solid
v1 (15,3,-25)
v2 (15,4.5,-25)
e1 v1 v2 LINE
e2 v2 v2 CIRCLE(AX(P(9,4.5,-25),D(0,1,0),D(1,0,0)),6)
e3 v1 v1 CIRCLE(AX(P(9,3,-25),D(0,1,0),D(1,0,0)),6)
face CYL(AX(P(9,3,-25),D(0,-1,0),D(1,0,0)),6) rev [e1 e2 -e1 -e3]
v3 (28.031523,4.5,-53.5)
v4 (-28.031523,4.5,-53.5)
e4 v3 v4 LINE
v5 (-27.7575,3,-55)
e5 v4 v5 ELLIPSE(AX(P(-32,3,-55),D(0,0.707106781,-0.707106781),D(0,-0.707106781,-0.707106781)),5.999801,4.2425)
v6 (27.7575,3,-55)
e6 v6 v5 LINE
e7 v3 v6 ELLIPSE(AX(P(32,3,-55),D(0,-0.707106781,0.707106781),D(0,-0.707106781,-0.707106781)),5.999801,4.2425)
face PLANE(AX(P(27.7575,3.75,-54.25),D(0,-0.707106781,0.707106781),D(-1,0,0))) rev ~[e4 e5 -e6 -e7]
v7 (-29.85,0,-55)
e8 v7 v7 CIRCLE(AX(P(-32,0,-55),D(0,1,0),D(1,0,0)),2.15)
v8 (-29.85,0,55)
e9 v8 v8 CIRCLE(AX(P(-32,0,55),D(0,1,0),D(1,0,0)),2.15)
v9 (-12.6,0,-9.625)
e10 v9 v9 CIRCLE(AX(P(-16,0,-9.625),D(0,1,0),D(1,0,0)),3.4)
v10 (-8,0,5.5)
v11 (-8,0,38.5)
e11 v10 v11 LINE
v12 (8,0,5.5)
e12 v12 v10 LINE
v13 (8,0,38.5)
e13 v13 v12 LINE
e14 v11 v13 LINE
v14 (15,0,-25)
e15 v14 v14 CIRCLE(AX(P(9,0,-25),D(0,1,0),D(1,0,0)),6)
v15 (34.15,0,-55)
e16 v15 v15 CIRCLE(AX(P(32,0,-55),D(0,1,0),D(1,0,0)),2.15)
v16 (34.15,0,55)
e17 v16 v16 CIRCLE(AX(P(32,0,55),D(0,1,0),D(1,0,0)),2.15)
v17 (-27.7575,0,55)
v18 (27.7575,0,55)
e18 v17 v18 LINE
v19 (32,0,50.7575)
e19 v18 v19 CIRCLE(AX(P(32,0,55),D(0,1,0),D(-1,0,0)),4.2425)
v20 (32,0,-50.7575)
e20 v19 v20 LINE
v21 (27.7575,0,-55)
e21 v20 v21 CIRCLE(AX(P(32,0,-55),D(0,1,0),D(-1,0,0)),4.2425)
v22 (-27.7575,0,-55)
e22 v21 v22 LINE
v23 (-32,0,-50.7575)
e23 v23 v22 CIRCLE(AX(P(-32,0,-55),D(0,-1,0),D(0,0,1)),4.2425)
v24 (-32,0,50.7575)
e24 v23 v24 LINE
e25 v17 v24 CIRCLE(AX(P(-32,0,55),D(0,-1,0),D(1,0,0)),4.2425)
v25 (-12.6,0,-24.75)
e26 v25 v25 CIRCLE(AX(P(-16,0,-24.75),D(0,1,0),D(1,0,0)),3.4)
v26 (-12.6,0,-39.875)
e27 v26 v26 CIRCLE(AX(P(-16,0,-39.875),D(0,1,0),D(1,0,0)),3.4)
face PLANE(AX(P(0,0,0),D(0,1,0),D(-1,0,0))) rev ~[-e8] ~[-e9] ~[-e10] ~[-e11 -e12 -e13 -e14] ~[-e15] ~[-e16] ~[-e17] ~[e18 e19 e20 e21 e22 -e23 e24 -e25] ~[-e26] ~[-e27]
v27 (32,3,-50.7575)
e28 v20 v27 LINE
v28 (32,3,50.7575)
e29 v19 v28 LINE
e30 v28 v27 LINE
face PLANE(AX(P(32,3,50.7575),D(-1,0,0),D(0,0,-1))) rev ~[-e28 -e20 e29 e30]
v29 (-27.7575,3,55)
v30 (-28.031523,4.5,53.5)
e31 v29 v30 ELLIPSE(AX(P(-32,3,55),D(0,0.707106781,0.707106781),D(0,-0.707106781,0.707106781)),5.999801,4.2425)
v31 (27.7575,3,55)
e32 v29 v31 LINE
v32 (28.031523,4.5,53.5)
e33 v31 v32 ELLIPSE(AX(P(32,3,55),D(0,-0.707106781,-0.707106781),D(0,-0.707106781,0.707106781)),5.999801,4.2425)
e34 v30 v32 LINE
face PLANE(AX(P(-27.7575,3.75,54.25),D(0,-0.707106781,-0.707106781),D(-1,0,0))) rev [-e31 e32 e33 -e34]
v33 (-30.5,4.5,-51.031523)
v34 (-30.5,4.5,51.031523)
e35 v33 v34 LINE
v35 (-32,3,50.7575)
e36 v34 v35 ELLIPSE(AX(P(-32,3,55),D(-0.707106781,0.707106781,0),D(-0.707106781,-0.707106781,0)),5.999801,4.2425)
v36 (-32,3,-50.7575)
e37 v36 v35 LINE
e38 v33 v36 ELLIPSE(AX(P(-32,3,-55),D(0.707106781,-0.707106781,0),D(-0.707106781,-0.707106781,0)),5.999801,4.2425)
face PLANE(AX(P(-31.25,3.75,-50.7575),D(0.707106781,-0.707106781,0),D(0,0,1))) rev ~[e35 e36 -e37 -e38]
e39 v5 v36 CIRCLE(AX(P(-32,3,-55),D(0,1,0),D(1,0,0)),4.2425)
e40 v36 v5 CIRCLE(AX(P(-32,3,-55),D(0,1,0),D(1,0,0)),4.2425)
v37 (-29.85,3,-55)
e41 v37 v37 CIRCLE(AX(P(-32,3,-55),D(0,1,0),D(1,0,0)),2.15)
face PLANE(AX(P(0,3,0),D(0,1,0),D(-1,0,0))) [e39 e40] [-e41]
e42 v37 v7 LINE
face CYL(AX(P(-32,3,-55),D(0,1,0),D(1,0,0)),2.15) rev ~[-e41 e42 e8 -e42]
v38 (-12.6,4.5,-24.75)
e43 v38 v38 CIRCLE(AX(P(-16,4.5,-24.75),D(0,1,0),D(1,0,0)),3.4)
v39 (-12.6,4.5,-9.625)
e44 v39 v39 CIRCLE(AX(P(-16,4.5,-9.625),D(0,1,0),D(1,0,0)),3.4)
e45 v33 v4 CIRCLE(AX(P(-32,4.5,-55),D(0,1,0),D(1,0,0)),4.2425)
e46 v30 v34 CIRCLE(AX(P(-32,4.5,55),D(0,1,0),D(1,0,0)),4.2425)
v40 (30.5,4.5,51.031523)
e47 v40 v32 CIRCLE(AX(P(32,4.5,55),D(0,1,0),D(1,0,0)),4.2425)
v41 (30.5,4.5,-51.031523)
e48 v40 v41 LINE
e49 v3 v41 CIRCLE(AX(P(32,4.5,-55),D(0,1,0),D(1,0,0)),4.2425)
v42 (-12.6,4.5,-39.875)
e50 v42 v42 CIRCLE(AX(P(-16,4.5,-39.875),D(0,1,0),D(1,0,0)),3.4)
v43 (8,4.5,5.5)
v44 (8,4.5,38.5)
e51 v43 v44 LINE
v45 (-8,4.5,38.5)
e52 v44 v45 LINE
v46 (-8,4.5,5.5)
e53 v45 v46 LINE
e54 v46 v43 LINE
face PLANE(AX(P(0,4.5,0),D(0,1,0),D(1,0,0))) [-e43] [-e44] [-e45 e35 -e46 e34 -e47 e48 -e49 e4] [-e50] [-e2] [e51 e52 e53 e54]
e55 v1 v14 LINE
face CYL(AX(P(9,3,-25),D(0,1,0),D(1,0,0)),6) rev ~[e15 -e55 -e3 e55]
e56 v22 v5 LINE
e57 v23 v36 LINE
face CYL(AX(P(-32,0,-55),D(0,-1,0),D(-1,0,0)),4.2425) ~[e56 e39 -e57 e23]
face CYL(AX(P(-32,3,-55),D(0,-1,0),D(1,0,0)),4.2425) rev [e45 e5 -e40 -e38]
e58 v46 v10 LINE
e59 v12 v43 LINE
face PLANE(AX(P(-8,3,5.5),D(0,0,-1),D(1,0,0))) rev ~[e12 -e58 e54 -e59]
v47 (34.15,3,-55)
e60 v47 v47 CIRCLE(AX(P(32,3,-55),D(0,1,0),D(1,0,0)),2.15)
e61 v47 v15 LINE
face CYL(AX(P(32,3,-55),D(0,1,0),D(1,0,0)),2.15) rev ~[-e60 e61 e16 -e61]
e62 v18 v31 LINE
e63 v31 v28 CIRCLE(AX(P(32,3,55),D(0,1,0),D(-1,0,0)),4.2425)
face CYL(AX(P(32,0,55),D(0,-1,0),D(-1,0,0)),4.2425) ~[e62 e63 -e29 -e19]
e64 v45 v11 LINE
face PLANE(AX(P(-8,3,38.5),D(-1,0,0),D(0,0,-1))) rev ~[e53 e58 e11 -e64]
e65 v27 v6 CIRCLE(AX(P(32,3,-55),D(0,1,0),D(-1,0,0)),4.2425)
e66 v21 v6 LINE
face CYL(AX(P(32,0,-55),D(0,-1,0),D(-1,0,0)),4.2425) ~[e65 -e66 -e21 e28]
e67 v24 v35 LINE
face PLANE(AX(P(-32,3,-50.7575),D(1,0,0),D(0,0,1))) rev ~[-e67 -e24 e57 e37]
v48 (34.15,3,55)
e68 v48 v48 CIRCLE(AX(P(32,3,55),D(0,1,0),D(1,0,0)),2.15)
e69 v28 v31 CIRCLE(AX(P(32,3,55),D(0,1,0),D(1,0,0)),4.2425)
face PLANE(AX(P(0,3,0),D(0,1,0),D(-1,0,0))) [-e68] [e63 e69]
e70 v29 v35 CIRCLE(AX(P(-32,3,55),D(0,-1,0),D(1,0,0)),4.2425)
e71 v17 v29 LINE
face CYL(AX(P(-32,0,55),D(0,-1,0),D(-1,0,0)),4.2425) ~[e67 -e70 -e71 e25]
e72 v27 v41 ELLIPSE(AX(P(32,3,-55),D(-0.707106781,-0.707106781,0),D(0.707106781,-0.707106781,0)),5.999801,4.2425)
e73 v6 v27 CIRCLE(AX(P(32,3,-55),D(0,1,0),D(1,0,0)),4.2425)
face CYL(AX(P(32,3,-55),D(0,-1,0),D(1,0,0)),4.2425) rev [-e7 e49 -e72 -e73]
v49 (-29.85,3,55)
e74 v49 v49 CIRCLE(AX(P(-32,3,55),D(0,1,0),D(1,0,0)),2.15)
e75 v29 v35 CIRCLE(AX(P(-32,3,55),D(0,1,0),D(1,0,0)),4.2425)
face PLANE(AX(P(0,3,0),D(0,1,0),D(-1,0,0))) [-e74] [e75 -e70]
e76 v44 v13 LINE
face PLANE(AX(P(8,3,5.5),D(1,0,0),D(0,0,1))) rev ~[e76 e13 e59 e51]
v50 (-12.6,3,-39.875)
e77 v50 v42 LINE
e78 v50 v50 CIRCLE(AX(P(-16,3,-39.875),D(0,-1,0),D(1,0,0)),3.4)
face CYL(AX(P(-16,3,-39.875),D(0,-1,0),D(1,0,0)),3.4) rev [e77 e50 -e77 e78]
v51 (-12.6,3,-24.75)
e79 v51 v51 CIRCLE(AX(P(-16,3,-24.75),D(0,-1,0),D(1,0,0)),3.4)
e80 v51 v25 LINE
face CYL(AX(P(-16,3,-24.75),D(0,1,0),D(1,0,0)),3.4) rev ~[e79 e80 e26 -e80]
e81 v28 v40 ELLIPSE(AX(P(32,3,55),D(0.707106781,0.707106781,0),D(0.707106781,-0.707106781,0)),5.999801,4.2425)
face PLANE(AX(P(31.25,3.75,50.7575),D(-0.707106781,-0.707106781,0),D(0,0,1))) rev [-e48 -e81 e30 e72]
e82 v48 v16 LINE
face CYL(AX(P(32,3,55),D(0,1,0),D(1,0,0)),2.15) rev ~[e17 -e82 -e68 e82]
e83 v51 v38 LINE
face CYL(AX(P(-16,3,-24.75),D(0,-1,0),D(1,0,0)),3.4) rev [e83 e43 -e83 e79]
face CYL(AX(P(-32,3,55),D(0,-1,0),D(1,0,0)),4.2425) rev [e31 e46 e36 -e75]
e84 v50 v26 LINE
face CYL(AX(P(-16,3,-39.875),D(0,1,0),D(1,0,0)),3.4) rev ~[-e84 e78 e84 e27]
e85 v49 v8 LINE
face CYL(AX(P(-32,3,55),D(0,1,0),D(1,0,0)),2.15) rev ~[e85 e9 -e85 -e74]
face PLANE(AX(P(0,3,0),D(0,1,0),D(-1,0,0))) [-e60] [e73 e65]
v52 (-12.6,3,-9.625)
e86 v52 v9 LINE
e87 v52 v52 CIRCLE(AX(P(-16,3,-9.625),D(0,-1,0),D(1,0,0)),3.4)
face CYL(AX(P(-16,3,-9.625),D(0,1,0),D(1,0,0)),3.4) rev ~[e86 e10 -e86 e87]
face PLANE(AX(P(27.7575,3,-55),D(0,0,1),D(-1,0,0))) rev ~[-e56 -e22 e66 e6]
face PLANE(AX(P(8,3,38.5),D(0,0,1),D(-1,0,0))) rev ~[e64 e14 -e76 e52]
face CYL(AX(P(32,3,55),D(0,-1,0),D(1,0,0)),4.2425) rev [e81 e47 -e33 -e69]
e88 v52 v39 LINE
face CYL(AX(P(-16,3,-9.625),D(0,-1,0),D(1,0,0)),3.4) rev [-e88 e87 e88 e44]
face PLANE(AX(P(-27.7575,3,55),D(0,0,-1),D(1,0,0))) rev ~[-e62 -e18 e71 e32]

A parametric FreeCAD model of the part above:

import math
import FreeCAD as App
import Part
import Sketcher
from FreeCAD import Vector


def edges_at(feature, points):
    """Names of the edges that pass closest to the given points."""
    edges = feature.Shape.Edges
    near = lambda p: min(range(len(edges)), key=lambda i: edges[i].distToShape(Part.Vertex(*p))[0])
    return sorted({f"Edge{near(p) + 1}" for p in points})


def add_polygon(sketch, points):
    """Adds a closed chain of lines whose ends are joined by coincident constraints."""
    first, n = sketch.GeometryCount, len(points)
    for a, b in zip(points, points[1:] + points[:1]):
        sketch.addGeometry(Part.LineSegment(App.Vector(*a, 0), App.Vector(*b, 0)), False)
    for i in range(n):
        sketch.addConstraint(Sketcher.Constraint("Coincident", first + i, 2, first + (i + 1) % n, 1))

doc = App.newDocument("Part")
body = doc.addObject("PartDesign::Body", "Body")

# Sketch on XZ plane
sketch1 = body.newObject("Sketcher::SketchObject", "Sketch")
sketch1.AttachmentSupport = (doc.getObject("XZ_Plane"), [""])
sketch1.MapMode = "FlatFace"
sketch1.addGeometry([
    Part.LineSegment(Vector(-27.8, 55, 0), Vector(27.8, 55, 0)),  # 0
    Part.ArcOfCircle(Part.Circle(Vector(32, 55, 0), Vector(0, 0, 1), 4.2), math.radians(-90), math.radians(180)),  # 1
    Part.LineSegment(Vector(32, 50.8, 0), Vector(32, -50.8, 0)),  # 2
    Part.ArcOfCircle(Part.Circle(Vector(32, -55, 0), Vector(0, 0, 1), 4.2), math.radians(180), math.radians(450)),  # 3
    Part.LineSegment(Vector(27.8, -55, 0), Vector(-27.8, -55, 0)),  # 4
    Part.ArcOfCircle(Part.Circle(Vector(-32, -55, 0), Vector(0, 0, 1), 4.2), math.radians(90), math.radians(360)),  # 5
    Part.LineSegment(Vector(-32, -50.8, 0), Vector(-32, 50.8, 0)),  # 6
    Part.ArcOfCircle(Part.Circle(Vector(-32, 55, 0), Vector(0, 0, 1), 4.2), math.radians(0), math.radians(270)),  # 7
], False)
sketch1.addConstraint([
    Sketcher.Constraint("Coincident", 0, 2, 1, 2),
    Sketcher.Constraint("Coincident", 1, 1, 2, 1),
    Sketcher.Constraint("Coincident", 2, 2, 3, 2),
    Sketcher.Constraint("Coincident", 3, 1, 4, 1),
    Sketcher.Constraint("Coincident", 4, 2, 5, 2),
    Sketcher.Constraint("Coincident", 5, 1, 6, 1),
    Sketcher.Constraint("Coincident", 6, 2, 7, 2),
    Sketcher.Constraint("Coincident", 7, 1, 0, 1),
    Sketcher.Constraint("Horizontal", 0),
    Sketcher.Constraint("Vertical", 2),
    Sketcher.Constraint("Horizontal", 4),
    Sketcher.Constraint("Vertical", 6),
    Sketcher.Constraint("Equal", 1, 3),
    Sketcher.Constraint("Equal", 3, 5),
    Sketcher.Constraint("Equal", 5, 7),
    Sketcher.Constraint("Symmetric", 1, 3, 5, 3, -1, 1),
    Sketcher.Constraint("Symmetric", 3, 3, 7, 3, -1, 1),
    Sketcher.Constraint("Symmetric", 3, 3, 5, 3, -2),
    Sketcher.Constraint("Horizontal", 7, 3, 0, 2),
    Sketcher.Constraint("Horizontal", 5, 3, 3, 1),
    Sketcher.Constraint("Vertical", 3, 3, 1, 1),
    Sketcher.Constraint("Vertical", 7, 3, 5, 1),
    Sketcher.Constraint("DistanceY", 3, 3, 1, 3, 110.0),
    Sketcher.Constraint("DistanceX", 5, 3, 3, 3, 64.0),
    Sketcher.Constraint("Radius", 1, 4.2425),
])
pad1 = body.newObject("PartDesign::Pad", "Pad")
pad1.Profile = sketch1
pad1.Length = 3
pad1.Reversed = True

# Sketch on XZ plane
sketch2 = body.newObject("Sketcher::SketchObject", "Sketch001")
sketch2.AttachmentSupport = (doc.getObject("XZ_Plane"), [""])
sketch2.MapMode = "FlatFace"
sketch2.AttachmentOffset = App.Placement(Vector(0, 0, -3), App.Rotation())
sketch2.addGeometry([
    Part.Circle(Vector(-32, 55, 0), Vector(0, 0, 1), 2.1),
    Part.Circle(Vector(-32, -55, 0), Vector(0, 0, 1), 2.1),
    Part.Circle(Vector(32, 55, 0), Vector(0, 0, 1), 2.1),
    Part.Circle(Vector(32, -55, 0), Vector(0, 0, 1), 2.1),
], False)
sketch2.addConstraint([
    Sketcher.Constraint("Equal", 0, 1),
    Sketcher.Constraint("Equal", 1, 2),
    Sketcher.Constraint("Equal", 2, 3),
    Sketcher.Constraint("Symmetric", 1, 3, 2, 3, -1, 1),
    Sketcher.Constraint("Symmetric", 0, 3, 3, 3, -1, 1),
    Sketcher.Constraint("Symmetric", 0, 3, 2, 3, -2),
    Sketcher.Constraint("Diameter", 0, 4.3),
    Sketcher.Constraint("DistanceY", 1, 3, 0, 3, 110.0),
    Sketcher.Constraint("DistanceX", 0, 3, 2, 3, 64.0),
])
pocket1 = body.newObject("PartDesign::Pocket", "Pocket")
pocket1.Profile = sketch2
pocket1.Length = 3
pocket1.Reversed = True

# Sketch on XZ plane
sketch3 = body.newObject("Sketcher::SketchObject", "Sketch002")
sketch3.AttachmentSupport = (doc.getObject("XZ_Plane"), [""])
sketch3.MapMode = "FlatFace"
sketch3.AttachmentOffset = App.Placement(Vector(0, 0, -3), App.Rotation())
add_polygon(sketch3, [(-8, 6), (-8, 38), (8, 38), (8, 6)])  # lines 0-3
sketch3.addConstraint([
    Sketcher.Constraint("Vertical", 0),
    Sketcher.Constraint("Horizontal", 1),
    Sketcher.Constraint("Vertical", 2),
    Sketcher.Constraint("Horizontal", 3),
    Sketcher.Constraint("DistanceX", 1, 1, 1, 2, 16.0),
    Sketcher.Constraint("DistanceY", 0, 1, 0, 2, 33.0),
    Sketcher.Constraint("DistanceX", 0, 2, -1, 1, 8.0),
    Sketcher.Constraint("DistanceY", -1, 1, 0, 2, 38.5),
])
pocket2 = body.newObject("PartDesign::Pocket", "Pocket001")
pocket2.Profile = sketch3
pocket2.Length = 3
pocket2.Reversed = True

# Sketch on XZ plane
sketch4 = body.newObject("Sketcher::SketchObject", "Sketch003")
sketch4.AttachmentSupport = (doc.getObject("XZ_Plane"), [""])
sketch4.MapMode = "FlatFace"
sketch4.AttachmentOffset = App.Placement(Vector(0, 0, -3), App.Rotation())
sketch4.addGeometry([
    Part.Circle(Vector(-16, -9.6, 0), Vector(0, 0, 1), 3.4),
    Part.Circle(Vector(-16, -39.9, 0), Vector(0, 0, 1), 3.4),
    Part.Circle(Vector(-16, -24.8, 0), Vector(0, 0, 1), 3.4),
    Part.Circle(Vector(9, -25, 0), Vector(0, 0, 1), 6),
], False)
sketch4.addConstraint([
    Sketcher.Constraint("Equal", 0, 1),
    Sketcher.Constraint("Equal", 1, 2),
    Sketcher.Constraint("Vertical", 0, 3, 1, 3),
    Sketcher.Constraint("Vertical", 1, 3, 2, 3),
    Sketcher.Constraint("Diameter", 3, 12.0),
    Sketcher.Constraint("Diameter", 0, 6.8),
    Sketcher.Constraint("DistanceX", 0, 3, -1, 1, 16.0),
    Sketcher.Constraint("DistanceX", -1, 1, 3, 3, 9.0),
    Sketcher.Constraint("DistanceY", 3, 3, -1, 1, 25.0),
    Sketcher.Constraint("DistanceY", 2, 3, 0, 3, 15.125),
    Sketcher.Constraint("DistanceY", 1, 3, 2, 3, 15.125),
    Sketcher.Constraint("DistanceY", 2, 3, -1, 1, 24.75),
])
pocket3 = body.newObject("PartDesign::Pocket", "Pocket002")
pocket3.Profile = sketch4
pocket3.Length = 6
pocket3.Reversed = True

# Sketch on XZ plane
sketch5 = body.newObject("Sketcher::SketchObject", "Sketch004")
sketch5.AttachmentSupport = (doc.getObject("XZ_Plane"), [""])
sketch5.MapMode = "FlatFace"
sketch5.AttachmentOffset = App.Placement(Vector(0, 0, -3), App.Rotation())
sketch5.addGeometry(Part.ArcOfCircle(Part.Circle(Vector(32, 55, 0), Vector(0, 0, 1), 4.2), math.radians(180), math.radians(270)), False)  # 0
sketch5.addGeometry(Part.LineSegment(Vector(32, 50.8, 0), Vector(32, -50.8, 0)), False)  # 1
sketch5.addGeometry(Part.ArcOfCircle(Part.Circle(Vector(32, -55, 0), Vector(0, 0, 1), 4.2), math.radians(90), math.radians(180)), False)  # 2
sketch5.addGeometry(Part.LineSegment(Vector(27.8, -55, 0), Vector(-27.8, -55, 0)), False)  # 3
sketch5.addGeometry(Part.ArcOfCircle(Part.Circle(Vector(-32, -55, 0), Vector(0, 0, 1), 4.2), math.radians(0), math.radians(90)), False)  # 4
sketch5.addGeometry(Part.LineSegment(Vector(-32, -50.8, 0), Vector(-32, 50.8, 0)), False)  # 5
sketch5.addGeometry(Part.ArcOfCircle(Part.Circle(Vector(-32, 55, 0), Vector(0, 0, 1), 4.2), math.radians(-90), math.radians(0)), False)  # 6
sketch5.addGeometry(Part.LineSegment(Vector(-27.8, 55, 0), Vector(27.8, 55, 0)), False)  # 7
add_polygon(sketch5, [(-8, 5.5), (8, 5.5), (8, 38.5), (-8, 38.5)])  # lines 8-11
sketch5.addGeometry(Part.Circle(Vector(-16, -9.6, 0), Vector(0, 0, 1), 3.4), False)  # 12
sketch5.addGeometry(Part.Circle(Vector(-16, -24.8, 0), Vector(0, 0, 1), 3.4), False)  # 13
sketch5.addGeometry(Part.Circle(Vector(-16, -39.9, 0), Vector(0, 0, 1), 3.4), False)  # 14
sketch5.addGeometry(Part.Circle(Vector(9, -25, 0), Vector(0, 0, 1), 6), False)  # 15
sketch5.addConstraint([
    Sketcher.Constraint("Coincident", 0, 2, 1, 1),
    Sketcher.Constraint("Coincident", 1, 2, 2, 1),
    Sketcher.Constraint("Coincident", 2, 2, 3, 1),
    Sketcher.Constraint("Coincident", 3, 2, 4, 1),
    Sketcher.Constraint("Coincident", 4, 2, 5, 1),
    Sketcher.Constraint("Coincident", 5, 2, 6, 1),
    Sketcher.Constraint("Coincident", 6, 2, 7, 1),
    Sketcher.Constraint("Coincident", 7, 2, 0, 1),
    Sketcher.Constraint("Vertical", 1),
    Sketcher.Constraint("Horizontal", 3),
    Sketcher.Constraint("Vertical", 5),
    Sketcher.Constraint("Horizontal", 7),
    Sketcher.Constraint("Horizontal", 8),
    Sketcher.Constraint("Vertical", 9),
    Sketcher.Constraint("Horizontal", 10),
    Sketcher.Constraint("Vertical", 11),
    Sketcher.Constraint("Equal", 0, 2),
    Sketcher.Constraint("Equal", 2, 4),
    Sketcher.Constraint("Equal", 4, 6),
    Sketcher.Constraint("Equal", 12, 13),
    Sketcher.Constraint("Equal", 13, 14),
    Sketcher.Constraint("Symmetric", 0, 3, 4, 3, -1, 1),
    Sketcher.Constraint("Symmetric", 2, 3, 6, 3, -1, 1),
    Sketcher.Constraint("Symmetric", 2, 3, 4, 3, -2),
    Sketcher.Constraint("Horizontal", 4, 3, 2, 2),
    Sketcher.Constraint("Horizontal", 0, 3, 6, 2),
    Sketcher.Constraint("Vertical", 12, 3, 13, 3),
    Sketcher.Constraint("Vertical", 13, 3, 14, 3),
    Sketcher.Constraint("Vertical", 2, 3, 0, 2),
    Sketcher.Constraint("Vertical", 6, 3, 4, 2),
    Sketcher.Constraint("Diameter", 15, 12.0),
    Sketcher.Constraint("DistanceY", 2, 3, 0, 3, 110.0),
    Sketcher.Constraint("DistanceX", 4, 3, 2, 3, 64.0),
    Sketcher.Constraint("Diameter", 12, 6.8),
    Sketcher.Constraint("DistanceX", 8, 1, 8, 2, 16.0),
    Sketcher.Constraint("DistanceY", 9, 1, 9, 2, 33.0),
    Sketcher.Constraint("DistanceX", 12, 3, -1, 1, 16.0),
    Sketcher.Constraint("DistanceX", -1, 1, 15, 3, 9.0),
    Sketcher.Constraint("DistanceY", 15, 3, -1, 1, 25.0),
    Sketcher.Constraint("DistanceX", -1, 1, 8, 2, 8.0),
    Sketcher.Constraint("DistanceY", -1, 1, 8, 2, 5.5),
    Sketcher.Constraint("Radius", 0, 4.2425),
    Sketcher.Constraint("DistanceY", 13, 3, -1, 1, 24.75),
    Sketcher.Constraint("DistanceY", 14, 3, 12, 3, 30.25),
    Sketcher.Constraint("DistanceY", 12, 3, -1, 1, 9.625),
])
pad2 = body.newObject("PartDesign::Pad", "Pad001")
pad2.Profile = sketch5
pad2.Length = 1.5
pad2.Reversed = True
doc.recompute()

chamfer = body.newObject("PartDesign::Chamfer", "Chamfer")
chamfer.Base = (pad2, edges_at(pad2, [
    (-32, 4.5, 0),
    (0, 4.5, 55),
    (32, 4.5, 0),
    (0, 4.5, -55),
]))
chamfer.Size = 1.5

doc.recompute()
